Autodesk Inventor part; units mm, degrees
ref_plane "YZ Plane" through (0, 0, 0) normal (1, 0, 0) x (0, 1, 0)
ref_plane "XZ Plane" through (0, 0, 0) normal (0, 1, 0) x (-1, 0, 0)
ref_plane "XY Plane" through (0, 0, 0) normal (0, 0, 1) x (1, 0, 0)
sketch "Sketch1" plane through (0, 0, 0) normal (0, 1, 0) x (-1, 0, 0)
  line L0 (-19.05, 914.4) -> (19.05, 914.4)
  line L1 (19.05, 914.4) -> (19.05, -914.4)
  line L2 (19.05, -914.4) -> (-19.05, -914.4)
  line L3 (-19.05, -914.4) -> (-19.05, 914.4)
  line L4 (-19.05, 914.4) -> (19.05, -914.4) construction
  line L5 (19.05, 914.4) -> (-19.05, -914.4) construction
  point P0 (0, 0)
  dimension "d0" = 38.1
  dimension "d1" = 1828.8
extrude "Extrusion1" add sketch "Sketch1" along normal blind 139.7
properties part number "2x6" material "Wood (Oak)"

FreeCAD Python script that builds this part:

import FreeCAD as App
import Part
import Sketcher

V = App.Vector
Q = App.Units.Quantity


def add_polygon(sketch, points):
    """Adds a closed chain of lines whose ends are joined by coincident constraints."""
    first, n = sketch.GeometryCount, len(points)
    for a, b in zip(points, points[1:] + points[:1]):
        sketch.addGeometry(Part.LineSegment(App.Vector(*a, 0), App.Vector(*b, 0)), False)
    for i in range(n):
        sketch.addConstraint(Sketcher.Constraint("Coincident", first + i, 2, first + (i + 1) % n, 1))

doc = App.newDocument("Part")
params = doc.addObject("Spreadsheet::Sheet", "Params")
for row, (alias, value) in enumerate([
    ("sketch1_height", "72 in"),
    ("sketch1_width", "1.5 in"),
    ("pad1_length", "5.5 in"),
], start=1):
    params.set(f"A{row}", alias)
    params.set(f"B{row}", "=" + value)
    params.setAlias(f"B{row}", alias)

body = doc.addObject("PartDesign::Body", "Body")

# Sketch on XZ plane
sketch1 = doc.addObject("Sketcher::SketchObject", "Sketch")
body.addObject(sketch1)
sketch1.AttachmentSupport = (doc.XZ_Plane, [""])
sketch1.MapMode = "FlatFace"
add_polygon(sketch1, [(-19, 914), (19, 914), (19, -914), (-19, -914)])  # lines 0-3
sketch1.addConstraint([
    Sketcher.Constraint("Horizontal", 0),
    Sketcher.Constraint("Vertical", 1),
    Sketcher.Constraint("Horizontal", 2),
    Sketcher.Constraint("Vertical", 3),
    Sketcher.Constraint("Symmetric", 0, 2, 2, 2, -1, 1),
    Sketcher.Constraint("DistanceY", 1, 2, 1, 1, Q("72 in")),
    Sketcher.Constraint("DistanceX", 0, 1, 0, 2, Q("1.5 in")),
])
sketch1.setExpression("Constraints[9]", "Params.sketch1_height")
sketch1.setExpression("Constraints[10]", "Params.sketch1_width")
pad1 = doc.addObject("PartDesign::Pad", "Pad")
body.addObject(pad1)
pad1.Profile = sketch1
pad1.setExpression("Length", "Params.pad1_length")
pad1.Reversed = True

doc.recompute()
